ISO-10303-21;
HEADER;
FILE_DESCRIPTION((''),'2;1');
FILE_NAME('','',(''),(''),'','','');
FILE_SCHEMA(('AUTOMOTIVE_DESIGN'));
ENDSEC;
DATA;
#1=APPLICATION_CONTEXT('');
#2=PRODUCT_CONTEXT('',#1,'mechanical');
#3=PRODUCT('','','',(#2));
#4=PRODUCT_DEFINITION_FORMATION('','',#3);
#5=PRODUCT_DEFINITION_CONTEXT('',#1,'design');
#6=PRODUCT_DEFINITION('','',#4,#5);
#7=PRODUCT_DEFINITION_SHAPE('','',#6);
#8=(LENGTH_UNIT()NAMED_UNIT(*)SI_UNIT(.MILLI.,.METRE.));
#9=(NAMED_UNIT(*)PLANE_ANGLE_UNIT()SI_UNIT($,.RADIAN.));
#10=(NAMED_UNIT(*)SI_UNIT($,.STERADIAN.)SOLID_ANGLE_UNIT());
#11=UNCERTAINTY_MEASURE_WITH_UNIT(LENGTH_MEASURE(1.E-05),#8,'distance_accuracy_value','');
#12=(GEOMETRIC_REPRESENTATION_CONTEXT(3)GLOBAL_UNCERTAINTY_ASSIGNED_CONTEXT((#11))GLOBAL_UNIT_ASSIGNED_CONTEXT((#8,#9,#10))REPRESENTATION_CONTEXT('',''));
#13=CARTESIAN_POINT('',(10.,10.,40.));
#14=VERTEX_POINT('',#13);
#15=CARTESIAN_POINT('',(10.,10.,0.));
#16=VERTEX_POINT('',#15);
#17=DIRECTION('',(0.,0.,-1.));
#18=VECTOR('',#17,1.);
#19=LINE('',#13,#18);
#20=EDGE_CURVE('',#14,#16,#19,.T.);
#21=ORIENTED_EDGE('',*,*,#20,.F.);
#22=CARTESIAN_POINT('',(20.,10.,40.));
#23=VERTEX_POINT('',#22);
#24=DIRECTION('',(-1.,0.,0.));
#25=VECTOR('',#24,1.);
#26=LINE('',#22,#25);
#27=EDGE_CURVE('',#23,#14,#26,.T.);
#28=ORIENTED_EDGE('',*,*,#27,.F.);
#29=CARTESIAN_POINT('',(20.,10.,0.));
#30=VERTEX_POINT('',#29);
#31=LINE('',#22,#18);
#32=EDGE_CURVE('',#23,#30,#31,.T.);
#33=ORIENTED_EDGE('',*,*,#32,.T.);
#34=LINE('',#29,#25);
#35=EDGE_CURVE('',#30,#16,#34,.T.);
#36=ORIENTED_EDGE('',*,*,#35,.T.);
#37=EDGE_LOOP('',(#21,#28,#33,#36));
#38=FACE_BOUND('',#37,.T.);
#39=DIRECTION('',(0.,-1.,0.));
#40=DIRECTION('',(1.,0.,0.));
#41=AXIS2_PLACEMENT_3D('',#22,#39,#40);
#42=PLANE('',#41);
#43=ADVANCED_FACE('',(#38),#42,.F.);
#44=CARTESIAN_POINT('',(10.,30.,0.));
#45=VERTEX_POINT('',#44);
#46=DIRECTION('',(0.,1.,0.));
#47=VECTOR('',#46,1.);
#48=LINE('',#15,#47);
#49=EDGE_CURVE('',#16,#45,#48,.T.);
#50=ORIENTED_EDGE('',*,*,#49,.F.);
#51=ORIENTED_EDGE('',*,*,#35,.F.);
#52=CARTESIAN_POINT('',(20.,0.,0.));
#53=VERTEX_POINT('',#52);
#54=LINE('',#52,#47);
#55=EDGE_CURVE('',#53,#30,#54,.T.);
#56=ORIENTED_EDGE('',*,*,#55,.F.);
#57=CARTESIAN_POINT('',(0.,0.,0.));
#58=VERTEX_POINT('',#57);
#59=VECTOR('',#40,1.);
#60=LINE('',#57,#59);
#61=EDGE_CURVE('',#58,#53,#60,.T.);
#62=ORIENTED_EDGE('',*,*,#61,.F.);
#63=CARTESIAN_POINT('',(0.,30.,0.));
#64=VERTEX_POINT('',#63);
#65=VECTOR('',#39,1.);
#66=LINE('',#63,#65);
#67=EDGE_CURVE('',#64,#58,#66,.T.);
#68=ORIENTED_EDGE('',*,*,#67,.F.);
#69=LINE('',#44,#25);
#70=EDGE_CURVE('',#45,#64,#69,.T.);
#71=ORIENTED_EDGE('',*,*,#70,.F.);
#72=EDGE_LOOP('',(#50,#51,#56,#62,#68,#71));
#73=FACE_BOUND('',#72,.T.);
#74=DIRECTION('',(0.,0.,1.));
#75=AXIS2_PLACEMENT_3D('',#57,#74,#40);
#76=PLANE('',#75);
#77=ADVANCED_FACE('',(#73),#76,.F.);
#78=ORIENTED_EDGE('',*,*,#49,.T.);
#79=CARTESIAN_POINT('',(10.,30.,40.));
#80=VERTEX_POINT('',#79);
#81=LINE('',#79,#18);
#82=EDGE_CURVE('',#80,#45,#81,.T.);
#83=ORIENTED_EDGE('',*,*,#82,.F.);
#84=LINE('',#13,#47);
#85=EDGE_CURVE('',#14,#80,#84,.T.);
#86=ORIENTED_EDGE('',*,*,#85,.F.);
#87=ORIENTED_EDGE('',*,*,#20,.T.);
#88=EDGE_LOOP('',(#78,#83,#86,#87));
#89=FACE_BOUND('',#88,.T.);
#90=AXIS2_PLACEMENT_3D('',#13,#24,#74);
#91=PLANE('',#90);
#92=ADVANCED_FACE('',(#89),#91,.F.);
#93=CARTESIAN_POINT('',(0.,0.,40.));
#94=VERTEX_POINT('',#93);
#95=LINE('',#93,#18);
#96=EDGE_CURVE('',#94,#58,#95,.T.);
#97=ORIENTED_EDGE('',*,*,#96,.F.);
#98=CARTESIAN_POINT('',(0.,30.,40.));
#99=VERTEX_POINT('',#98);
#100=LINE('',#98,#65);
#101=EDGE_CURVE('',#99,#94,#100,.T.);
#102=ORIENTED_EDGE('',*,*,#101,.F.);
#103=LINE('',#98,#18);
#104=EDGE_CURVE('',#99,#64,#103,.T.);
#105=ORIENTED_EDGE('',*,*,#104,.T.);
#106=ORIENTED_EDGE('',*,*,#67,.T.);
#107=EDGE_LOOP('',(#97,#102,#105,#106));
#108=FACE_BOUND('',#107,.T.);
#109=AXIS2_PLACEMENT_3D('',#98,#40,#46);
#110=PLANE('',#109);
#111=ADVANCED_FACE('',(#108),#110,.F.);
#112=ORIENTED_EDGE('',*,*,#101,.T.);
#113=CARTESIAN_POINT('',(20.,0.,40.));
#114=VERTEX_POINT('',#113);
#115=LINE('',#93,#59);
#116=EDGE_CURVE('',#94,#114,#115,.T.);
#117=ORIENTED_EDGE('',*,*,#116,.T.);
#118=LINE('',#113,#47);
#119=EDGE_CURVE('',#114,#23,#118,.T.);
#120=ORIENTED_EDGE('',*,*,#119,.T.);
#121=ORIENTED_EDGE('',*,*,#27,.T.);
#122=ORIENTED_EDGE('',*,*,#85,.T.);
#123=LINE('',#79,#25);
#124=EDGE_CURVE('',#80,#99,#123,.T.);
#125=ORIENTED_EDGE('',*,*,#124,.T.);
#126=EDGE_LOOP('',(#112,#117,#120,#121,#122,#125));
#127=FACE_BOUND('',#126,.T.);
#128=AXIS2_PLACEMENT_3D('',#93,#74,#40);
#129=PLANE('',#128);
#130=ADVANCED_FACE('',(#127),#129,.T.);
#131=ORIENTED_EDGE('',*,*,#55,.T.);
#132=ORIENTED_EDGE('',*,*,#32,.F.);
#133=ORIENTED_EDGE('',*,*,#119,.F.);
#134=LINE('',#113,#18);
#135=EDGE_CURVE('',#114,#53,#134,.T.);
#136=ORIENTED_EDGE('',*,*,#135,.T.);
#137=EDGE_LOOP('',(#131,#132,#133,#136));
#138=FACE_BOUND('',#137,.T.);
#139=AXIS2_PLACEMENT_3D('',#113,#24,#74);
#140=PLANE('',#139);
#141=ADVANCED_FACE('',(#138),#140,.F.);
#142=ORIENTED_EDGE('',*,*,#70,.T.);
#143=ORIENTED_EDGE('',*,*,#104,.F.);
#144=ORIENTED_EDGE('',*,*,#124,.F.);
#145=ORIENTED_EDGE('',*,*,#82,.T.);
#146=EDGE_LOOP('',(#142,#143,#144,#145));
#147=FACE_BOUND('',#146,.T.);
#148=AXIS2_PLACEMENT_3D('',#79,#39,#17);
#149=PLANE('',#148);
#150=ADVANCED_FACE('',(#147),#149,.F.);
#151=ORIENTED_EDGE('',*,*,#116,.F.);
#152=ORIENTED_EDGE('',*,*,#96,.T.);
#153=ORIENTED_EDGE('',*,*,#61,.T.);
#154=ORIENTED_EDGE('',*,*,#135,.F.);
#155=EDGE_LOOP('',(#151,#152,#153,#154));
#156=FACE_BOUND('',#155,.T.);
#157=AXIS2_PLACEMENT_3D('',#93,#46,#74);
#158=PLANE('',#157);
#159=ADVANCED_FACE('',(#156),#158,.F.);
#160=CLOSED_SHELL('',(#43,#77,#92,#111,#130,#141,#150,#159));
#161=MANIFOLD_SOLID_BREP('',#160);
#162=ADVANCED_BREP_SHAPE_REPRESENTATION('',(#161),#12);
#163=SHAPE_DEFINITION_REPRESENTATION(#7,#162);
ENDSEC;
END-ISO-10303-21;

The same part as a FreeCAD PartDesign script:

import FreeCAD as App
import Part
import Sketcher
from FreeCAD import Vector
Q = App.Units.Quantity

doc = App.newDocument("Part")
body = doc.addObject("PartDesign::Body", "Body")

# Sketch on XY plane
sketch1 = body.newObject("Sketcher::SketchObject", "Sketch")
sketch1.AttachmentSupport = (doc.getObject("XY_Plane"), [""])
sketch1.MapMode = "FlatFace"
sketch1.addGeometry(Part.LineSegment(Vector(0, 0, 0), Vector(20, 0, 0)), False)
sketch1.addGeometry(Part.LineSegment(Vector(20, 0, 0), Vector(20, 10, 0)), False)
sketch1.addGeometry(Part.LineSegment(Vector(20, 10, 0), Vector(10, 10, 0)), False)
sketch1.addGeometry(Part.LineSegment(Vector(10, 10, 0), Vector(10, 30, 0)), False)
sketch1.addGeometry(Part.LineSegment(Vector(10, 30, 0), Vector(0, 30, 0)), False)
sketch1.addGeometry(Part.LineSegment(Vector(0, 30, 0), Vector(0, 0, 0)), False)
sketch1.addConstraint(Sketcher.Constraint("Coincident", 0, 2, 1, 1))
sketch1.addConstraint(Sketcher.Constraint("Coincident", 1, 2, 2, 1))
sketch1.addConstraint(Sketcher.Constraint("Coincident", 2, 2, 3, 1))
sketch1.addConstraint(Sketcher.Constraint("Coincident", 3, 2, 4, 1))
sketch1.addConstraint(Sketcher.Constraint("Coincident", 4, 2, 5, 1))
sketch1.addConstraint(Sketcher.Constraint("Coincident", 5, 2, 0, 1))
sketch1.addConstraint(Sketcher.Constraint("Horizontal", 0))
sketch1.addConstraint(Sketcher.Constraint("Vertical", 1))
sketch1.addConstraint(Sketcher.Constraint("Horizontal", 2))
sketch1.addConstraint(Sketcher.Constraint("Vertical", 3))
sketch1.addConstraint(Sketcher.Constraint("Horizontal", 4))
sketch1.addConstraint(Sketcher.Constraint("Vertical", 5))
sketch1.addConstraint(Sketcher.Constraint("Coincident", 5, 2, -1, 1))
sketch1.addConstraint(Sketcher.Constraint("Equal", 2, 4))
sketch1.addConstraint(Sketcher.Constraint("Equal", 4, 1))
sketch1.addConstraint(Sketcher.Constraint("Equal", 0, 3))
sketch1.addConstraint(Sketcher.Constraint("DistanceX", 0, 1, 0, 2, Q("20 mm")))
pad1 = body.newObject("PartDesign::Pad", "Pad")
pad1.Profile = sketch1
pad1.Length = 40

doc.recompute()
